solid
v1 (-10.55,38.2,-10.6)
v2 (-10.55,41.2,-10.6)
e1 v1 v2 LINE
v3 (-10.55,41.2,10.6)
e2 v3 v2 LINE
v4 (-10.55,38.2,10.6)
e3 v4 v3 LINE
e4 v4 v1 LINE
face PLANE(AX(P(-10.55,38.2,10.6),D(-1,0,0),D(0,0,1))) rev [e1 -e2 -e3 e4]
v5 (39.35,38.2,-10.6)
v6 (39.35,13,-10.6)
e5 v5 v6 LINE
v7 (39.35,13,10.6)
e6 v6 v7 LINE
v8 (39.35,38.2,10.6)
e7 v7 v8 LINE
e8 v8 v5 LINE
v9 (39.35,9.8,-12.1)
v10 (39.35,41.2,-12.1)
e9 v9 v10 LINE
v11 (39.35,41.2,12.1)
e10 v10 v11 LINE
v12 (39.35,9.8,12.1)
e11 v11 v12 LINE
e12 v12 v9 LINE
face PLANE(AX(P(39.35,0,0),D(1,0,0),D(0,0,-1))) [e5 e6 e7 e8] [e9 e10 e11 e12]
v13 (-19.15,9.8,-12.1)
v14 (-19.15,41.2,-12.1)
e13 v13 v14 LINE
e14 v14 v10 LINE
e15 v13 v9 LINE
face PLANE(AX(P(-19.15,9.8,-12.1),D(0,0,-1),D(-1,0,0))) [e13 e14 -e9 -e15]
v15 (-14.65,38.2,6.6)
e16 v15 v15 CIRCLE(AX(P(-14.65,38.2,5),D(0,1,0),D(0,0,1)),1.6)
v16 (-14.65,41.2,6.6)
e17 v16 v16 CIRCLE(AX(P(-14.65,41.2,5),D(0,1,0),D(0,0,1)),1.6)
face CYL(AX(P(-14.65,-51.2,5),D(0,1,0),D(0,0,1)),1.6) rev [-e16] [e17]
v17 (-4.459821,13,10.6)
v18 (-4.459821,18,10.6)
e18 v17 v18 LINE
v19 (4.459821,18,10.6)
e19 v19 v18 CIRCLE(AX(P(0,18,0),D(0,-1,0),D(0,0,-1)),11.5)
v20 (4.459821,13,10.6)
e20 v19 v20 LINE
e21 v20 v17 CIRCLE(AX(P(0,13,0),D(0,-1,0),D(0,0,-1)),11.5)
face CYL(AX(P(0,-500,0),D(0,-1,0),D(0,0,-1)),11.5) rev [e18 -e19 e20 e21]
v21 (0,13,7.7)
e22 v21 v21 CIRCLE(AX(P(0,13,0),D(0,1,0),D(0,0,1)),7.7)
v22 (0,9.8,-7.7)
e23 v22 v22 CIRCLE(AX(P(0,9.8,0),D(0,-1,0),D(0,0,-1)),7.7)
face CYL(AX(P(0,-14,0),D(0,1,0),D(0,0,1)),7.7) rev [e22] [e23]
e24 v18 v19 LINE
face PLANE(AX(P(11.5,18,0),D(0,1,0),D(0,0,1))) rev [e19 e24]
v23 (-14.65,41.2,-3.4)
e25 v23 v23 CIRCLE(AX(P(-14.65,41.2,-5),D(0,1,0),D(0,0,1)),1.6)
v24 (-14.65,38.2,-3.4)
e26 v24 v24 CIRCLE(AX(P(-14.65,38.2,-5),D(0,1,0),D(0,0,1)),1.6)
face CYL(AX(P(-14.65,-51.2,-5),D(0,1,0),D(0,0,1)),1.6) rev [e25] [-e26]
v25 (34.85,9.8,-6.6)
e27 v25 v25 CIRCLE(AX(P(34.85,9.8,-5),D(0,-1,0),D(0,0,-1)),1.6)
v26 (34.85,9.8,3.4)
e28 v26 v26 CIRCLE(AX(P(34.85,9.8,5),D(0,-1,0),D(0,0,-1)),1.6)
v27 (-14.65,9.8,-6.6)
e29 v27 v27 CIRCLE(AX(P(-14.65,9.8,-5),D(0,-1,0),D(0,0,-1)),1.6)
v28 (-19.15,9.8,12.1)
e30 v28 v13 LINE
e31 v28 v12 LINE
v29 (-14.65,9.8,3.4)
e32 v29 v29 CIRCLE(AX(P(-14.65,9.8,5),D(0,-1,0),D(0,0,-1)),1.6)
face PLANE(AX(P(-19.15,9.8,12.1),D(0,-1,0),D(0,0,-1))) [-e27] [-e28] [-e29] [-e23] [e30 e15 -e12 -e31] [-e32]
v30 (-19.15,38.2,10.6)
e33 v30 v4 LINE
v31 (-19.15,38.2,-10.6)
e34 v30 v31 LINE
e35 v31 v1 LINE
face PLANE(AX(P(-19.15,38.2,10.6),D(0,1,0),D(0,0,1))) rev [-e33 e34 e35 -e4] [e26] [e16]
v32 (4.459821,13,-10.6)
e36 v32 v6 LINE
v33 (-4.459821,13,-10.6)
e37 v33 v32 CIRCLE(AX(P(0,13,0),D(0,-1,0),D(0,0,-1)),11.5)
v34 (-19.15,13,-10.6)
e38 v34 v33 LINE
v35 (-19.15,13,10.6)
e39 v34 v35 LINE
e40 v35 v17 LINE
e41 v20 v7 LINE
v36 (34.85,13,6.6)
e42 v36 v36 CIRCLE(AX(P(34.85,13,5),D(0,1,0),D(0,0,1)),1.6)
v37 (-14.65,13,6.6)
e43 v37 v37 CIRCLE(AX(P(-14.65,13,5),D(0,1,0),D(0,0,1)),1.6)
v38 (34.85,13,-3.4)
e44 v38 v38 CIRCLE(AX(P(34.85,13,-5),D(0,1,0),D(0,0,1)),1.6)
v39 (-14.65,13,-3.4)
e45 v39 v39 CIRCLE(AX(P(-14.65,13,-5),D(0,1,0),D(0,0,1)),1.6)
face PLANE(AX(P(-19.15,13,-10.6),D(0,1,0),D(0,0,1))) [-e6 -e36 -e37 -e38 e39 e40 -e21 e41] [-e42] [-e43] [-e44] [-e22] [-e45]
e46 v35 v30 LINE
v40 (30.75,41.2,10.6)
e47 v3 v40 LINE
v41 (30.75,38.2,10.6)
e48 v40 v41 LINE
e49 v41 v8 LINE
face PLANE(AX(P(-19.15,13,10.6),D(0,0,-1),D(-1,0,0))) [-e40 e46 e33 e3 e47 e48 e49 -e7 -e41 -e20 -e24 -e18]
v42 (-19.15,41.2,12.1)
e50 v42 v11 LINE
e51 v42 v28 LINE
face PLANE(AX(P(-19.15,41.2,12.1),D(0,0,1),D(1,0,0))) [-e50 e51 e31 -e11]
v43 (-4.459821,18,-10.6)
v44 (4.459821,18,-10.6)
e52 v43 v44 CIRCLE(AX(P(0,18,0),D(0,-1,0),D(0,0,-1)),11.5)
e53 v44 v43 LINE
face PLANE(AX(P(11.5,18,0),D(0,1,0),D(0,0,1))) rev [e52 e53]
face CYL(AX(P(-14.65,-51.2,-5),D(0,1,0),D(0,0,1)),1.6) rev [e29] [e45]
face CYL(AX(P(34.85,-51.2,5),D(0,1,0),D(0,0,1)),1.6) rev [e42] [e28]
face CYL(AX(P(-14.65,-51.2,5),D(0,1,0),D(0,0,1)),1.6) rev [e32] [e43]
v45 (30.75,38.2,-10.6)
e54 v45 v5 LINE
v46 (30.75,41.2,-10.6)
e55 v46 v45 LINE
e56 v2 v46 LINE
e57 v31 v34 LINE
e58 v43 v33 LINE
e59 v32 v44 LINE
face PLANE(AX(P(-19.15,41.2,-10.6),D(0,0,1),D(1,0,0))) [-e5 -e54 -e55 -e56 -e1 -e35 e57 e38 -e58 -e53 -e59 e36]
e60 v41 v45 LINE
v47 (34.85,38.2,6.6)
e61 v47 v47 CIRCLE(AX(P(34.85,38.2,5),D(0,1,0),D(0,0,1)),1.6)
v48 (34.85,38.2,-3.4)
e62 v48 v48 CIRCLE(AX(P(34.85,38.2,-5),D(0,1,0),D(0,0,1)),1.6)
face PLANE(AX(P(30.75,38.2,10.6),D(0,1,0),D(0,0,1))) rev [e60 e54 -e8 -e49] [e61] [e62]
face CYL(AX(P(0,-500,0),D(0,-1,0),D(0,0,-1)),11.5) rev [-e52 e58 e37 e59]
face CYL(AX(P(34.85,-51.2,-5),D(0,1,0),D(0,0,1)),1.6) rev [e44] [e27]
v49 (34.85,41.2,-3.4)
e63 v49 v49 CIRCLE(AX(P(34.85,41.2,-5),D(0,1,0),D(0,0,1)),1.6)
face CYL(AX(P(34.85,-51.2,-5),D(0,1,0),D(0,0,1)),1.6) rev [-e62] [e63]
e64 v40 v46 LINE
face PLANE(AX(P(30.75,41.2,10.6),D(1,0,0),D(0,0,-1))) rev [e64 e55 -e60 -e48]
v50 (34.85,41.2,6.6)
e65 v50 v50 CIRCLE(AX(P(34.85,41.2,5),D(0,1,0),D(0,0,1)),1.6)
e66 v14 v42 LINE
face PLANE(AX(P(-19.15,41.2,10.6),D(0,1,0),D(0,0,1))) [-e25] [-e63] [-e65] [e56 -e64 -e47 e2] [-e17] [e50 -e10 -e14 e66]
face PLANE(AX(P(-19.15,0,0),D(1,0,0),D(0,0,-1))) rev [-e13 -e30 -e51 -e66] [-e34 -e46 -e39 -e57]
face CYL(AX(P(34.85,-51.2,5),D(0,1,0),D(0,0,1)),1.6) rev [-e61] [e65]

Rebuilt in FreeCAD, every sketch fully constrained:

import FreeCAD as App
import Part
import Sketcher
Q = App.Units.Quantity


def add_polygon(sketch, points):
    """Adds a closed chain of lines whose ends are joined by coincident constraints."""
    first, n = sketch.GeometryCount, len(points)
    for a, b in zip(points, points[1:] + points[:1]):
        sketch.addGeometry(Part.LineSegment(App.Vector(*a, 0), App.Vector(*b, 0)), False)
    for i in range(n):
        sketch.addConstraint(Sketcher.Constraint("Coincident", first + i, 2, first + (i + 1) % n, 1))

doc = App.newDocument("Part")
params = doc.addObject("Spreadsheet::Sheet", "Params")
for row, (alias, value) in enumerate([
    ("sketch1_width", "31.4 mm"),
    ("sketch1_width2", "28.2 mm"),
    ("sketch1_height", "24.2 mm"),
    ("sketch1_height2", "1.5 mm"),
    ("pad1_length", "39.35 mm"),
    ("pad1_length2", "19.15 mm"),
    ("sketch2_height", "3 mm"),
    ("sketch2_width", "8.6 mm"),
    ("pad2_length", "21.2 mm"),
    ("sketch3_diameter", "3.2 mm"),
    ("pocket1_length", "102.4 mm"),
    ("sketch4_diameter", "15.4 mm"),
    ("pocket2_length", "28 mm"),
    ("sketch5_height", "5 mm"),
    ("sketch5_width", "11.5 mm"),
    ("groove_angle", "360 deg"),
], start=1):
    params.set(f"A{row}", alias)
    params.set(f"B{row}", "=" + value)
    params.setAlias(f"B{row}", alias)

body = doc.addObject("PartDesign::Body", "Body")

sketch1 = doc.addObject("Sketcher::SketchObject", "Sketch")
body.addObject(sketch1)
sketch1.AttachmentSupport = (doc.YZ_Plane, [""])
sketch1.MapMode = "FlatFace"
add_polygon(sketch1, [(9.8, 12.1), (9.8, -12.1), (41.2, -12.1), (41.2, -10.6), (13, -10.6), (13, 10.6), (41.2, 10.6), (41.2, 12.1)])
sketch1.addConstraint([
    Sketcher.Constraint("Vertical", 0),
    Sketcher.Constraint("Horizontal", 1),
    Sketcher.Constraint("Vertical", 2),
    Sketcher.Constraint("Horizontal", 3),
    Sketcher.Constraint("Vertical", 4),
    Sketcher.Constraint("Horizontal", 5),
    Sketcher.Constraint("Vertical", 6),
    Sketcher.Constraint("Horizontal", 7),
    Sketcher.Constraint("Symmetric", 2, 2, 5, 2, -1),
    Sketcher.Constraint("Equal", 2, 6),
    Sketcher.Constraint("DistanceX", 1, 1, 1, 2, Q("31.4 mm")),
    Sketcher.Constraint("DistanceX", 3, 2, 3, 1, Q("28.2 mm")),
    Sketcher.Constraint("DistanceY", 0, 2, 0, 1, Q("24.2 mm")),
    Sketcher.Constraint("DistanceY", 2, 1, 2, 2, Q("1.5 mm")),
    Sketcher.Constraint("DistanceX", -1, 1, 3, 2, Q("13 mm")),
])
sketch1.setExpression("Constraints[18]", "Params.sketch1_width")
sketch1.setExpression("Constraints[19]", "Params.sketch1_width2")
sketch1.setExpression("Constraints[20]", "Params.sketch1_height")
sketch1.setExpression("Constraints[21]", "Params.sketch1_height2")
pad1 = doc.addObject("PartDesign::Pad", "Pad")
body.addObject(pad1)
pad1.Profile = sketch1
pad1.Type = "TwoLengths"
pad1.setExpression("Length", "Params.pad1_length")
pad1.setExpression("Length2", "Params.pad1_length2")

sketch2 = doc.addObject("Sketcher::SketchObject", "Sketch001")
body.addObject(sketch2)
sketch2.AttachmentSupport = (doc.XY_Plane, [""])
sketch2.MapMode = "FlatFace"
add_polygon(sketch2, [(-19.1, 41.2), (-19.1, 38.2), (-10.6, 38.2), (-10.6, 41.2)])
add_polygon(sketch2, [(30.8, 41.2), (30.8, 38.2), (39.4, 38.2), (39.4, 41.2)])
sketch2.addConstraint([
    Sketcher.Constraint("Vertical", 0),
    Sketcher.Constraint("Horizontal", 1),
    Sketcher.Constraint("Vertical", 2),
    Sketcher.Constraint("Horizontal", 3),
    Sketcher.Constraint("Vertical", 4),
    Sketcher.Constraint("Horizontal", 5),
    Sketcher.Constraint("Vertical", 6),
    Sketcher.Constraint("Horizontal", 7),
    Sketcher.Constraint("Horizontal", 1, 2, 4, 2),
    Sketcher.Constraint("Horizontal", 3, 2, 6, 2),
    Sketcher.Constraint("Equal", 3, 5),
    Sketcher.Constraint("DistanceY", 0, 2, 0, 1, Q("3 mm")),
    Sketcher.Constraint("DistanceX", 1, 1, 1, 2, Q("8.6 mm")),
    Sketcher.Constraint("DistanceY", -1, 1, 0, 2, Q("38.2 mm")),
    Sketcher.Constraint("DistanceX", 1, 2, 4, 2, Q("41.3 mm")),
    Sketcher.Constraint("DistanceX", 0, 2, -1, 1, Q("19.15 mm")),
])
sketch2.setExpression("Constraints[19]", "Params.sketch2_height")
sketch2.setExpression("Constraints[20]", "Params.sketch2_width")
pad2 = doc.addObject("PartDesign::Pad", "Pad001")
body.addObject(pad2)
pad2.Profile = sketch2
pad2.setExpression("Length", "Params.pad2_length")
pad2.Midplane = True

sketch3 = doc.addObject("Sketcher::SketchObject", "Sketch002")
body.addObject(sketch3)
sketch3.AttachmentSupport = (doc.XZ_Plane, [""])
sketch3.MapMode = "FlatFace"
sketch3.addGeometry([
    Part.Circle(App.Vector(-14.7, 5, 0), App.Vector(0, 0, 1), 1.6),
    Part.Circle(App.Vector(-14.7, -5, 0), App.Vector(0, 0, 1), 1.6),
    Part.Circle(App.Vector(34.9, 5, 0), App.Vector(0, 0, 1), 1.6),
    Part.Circle(App.Vector(34.9, -5, 0), App.Vector(0, 0, 1), 1.6),
], False)
sketch3.addConstraint([
    Sketcher.Constraint("Equal", 0, 1),
    Sketcher.Constraint("Equal", 1, 2),
    Sketcher.Constraint("Equal", 2, 3),
    Sketcher.Constraint("Symmetric", 0, 3, 1, 3, -1),
    Sketcher.Constraint("Symmetric", 2, 3, 3, 3, -1),
    Sketcher.Constraint("Horizontal", 0, 3, 2, 3),
    Sketcher.Constraint("Diameter", 0, Q("3.2 mm")),
    Sketcher.Constraint("DistanceY", -1, 1, 0, 3, Q("5 mm")),
    Sketcher.Constraint("DistanceX", 0, 3, 2, 3, Q("49.5 mm")),
    Sketcher.Constraint("DistanceX", 0, 3, -1, 1, Q("14.65 mm")),
])
sketch3.setExpression("Constraints[6]", "Params.sketch3_diameter")
pocket1 = doc.addObject("PartDesign::Pocket", "Pocket")
body.addObject(pocket1)
pocket1.Profile = sketch3
pocket1.setExpression("Length", "Params.pocket1_length")
pocket1.Midplane = True

sketch4 = doc.addObject("Sketcher::SketchObject", "Sketch003")
body.addObject(sketch4)
sketch4.AttachmentSupport = (doc.XZ_Plane, [""])
sketch4.MapMode = "FlatFace"
sketch4.addGeometry(Part.Circle(App.Vector(0, 0, 0), App.Vector(0, 0, 1), 8), False)
sketch4.addConstraint([
    Sketcher.Constraint("Coincident", 0, 3, -1, 1),
    Sketcher.Constraint("Diameter", 0, Q("15.4 mm")),
])
sketch4.setExpression("Constraints[1]", "Params.sketch4_diameter")
pocket2 = doc.addObject("PartDesign::Pocket", "Pocket001")
body.addObject(pocket2)
pocket2.Profile = sketch4
pocket2.setExpression("Length", "Params.pocket2_length")
pocket2.Midplane = True

sketch5 = doc.addObject("Sketcher::SketchObject", "Sketch004")
body.addObject(sketch5)
sketch5.AttachmentSupport = (doc.XY_Plane, [""])
sketch5.MapMode = "FlatFace"
add_polygon(sketch5, [(0, 18), (0, 13), (12, 13), (12, 18)])
sketch5.addConstraint([
    Sketcher.Constraint("Vertical", 0),
    Sketcher.Constraint("Horizontal", 1),
    Sketcher.Constraint("Vertical", 2),
    Sketcher.Constraint("Horizontal", 3),
    Sketcher.Constraint("PointOnObject", 0, 2, -2),
    Sketcher.Constraint("DistanceY", 0, 2, 0, 1, Q("5 mm")),
    Sketcher.Constraint("DistanceX", 1, 1, 1, 2, Q("11.5 mm")),
    Sketcher.Constraint("DistanceY", -1, 1, 0, 2, Q("13 mm")),
])
sketch5.setExpression("Constraints[9]", "Params.sketch5_height")
sketch5.setExpression("Constraints[10]", "Params.sketch5_width")
groove = doc.addObject("PartDesign::Groove", "Groove")
body.addObject(groove)
groove.Profile = sketch5
groove.ReferenceAxis = (sketch5, ["V_Axis"])
groove.setExpression("Angle", "Params.groove_angle")

doc.recompute()
